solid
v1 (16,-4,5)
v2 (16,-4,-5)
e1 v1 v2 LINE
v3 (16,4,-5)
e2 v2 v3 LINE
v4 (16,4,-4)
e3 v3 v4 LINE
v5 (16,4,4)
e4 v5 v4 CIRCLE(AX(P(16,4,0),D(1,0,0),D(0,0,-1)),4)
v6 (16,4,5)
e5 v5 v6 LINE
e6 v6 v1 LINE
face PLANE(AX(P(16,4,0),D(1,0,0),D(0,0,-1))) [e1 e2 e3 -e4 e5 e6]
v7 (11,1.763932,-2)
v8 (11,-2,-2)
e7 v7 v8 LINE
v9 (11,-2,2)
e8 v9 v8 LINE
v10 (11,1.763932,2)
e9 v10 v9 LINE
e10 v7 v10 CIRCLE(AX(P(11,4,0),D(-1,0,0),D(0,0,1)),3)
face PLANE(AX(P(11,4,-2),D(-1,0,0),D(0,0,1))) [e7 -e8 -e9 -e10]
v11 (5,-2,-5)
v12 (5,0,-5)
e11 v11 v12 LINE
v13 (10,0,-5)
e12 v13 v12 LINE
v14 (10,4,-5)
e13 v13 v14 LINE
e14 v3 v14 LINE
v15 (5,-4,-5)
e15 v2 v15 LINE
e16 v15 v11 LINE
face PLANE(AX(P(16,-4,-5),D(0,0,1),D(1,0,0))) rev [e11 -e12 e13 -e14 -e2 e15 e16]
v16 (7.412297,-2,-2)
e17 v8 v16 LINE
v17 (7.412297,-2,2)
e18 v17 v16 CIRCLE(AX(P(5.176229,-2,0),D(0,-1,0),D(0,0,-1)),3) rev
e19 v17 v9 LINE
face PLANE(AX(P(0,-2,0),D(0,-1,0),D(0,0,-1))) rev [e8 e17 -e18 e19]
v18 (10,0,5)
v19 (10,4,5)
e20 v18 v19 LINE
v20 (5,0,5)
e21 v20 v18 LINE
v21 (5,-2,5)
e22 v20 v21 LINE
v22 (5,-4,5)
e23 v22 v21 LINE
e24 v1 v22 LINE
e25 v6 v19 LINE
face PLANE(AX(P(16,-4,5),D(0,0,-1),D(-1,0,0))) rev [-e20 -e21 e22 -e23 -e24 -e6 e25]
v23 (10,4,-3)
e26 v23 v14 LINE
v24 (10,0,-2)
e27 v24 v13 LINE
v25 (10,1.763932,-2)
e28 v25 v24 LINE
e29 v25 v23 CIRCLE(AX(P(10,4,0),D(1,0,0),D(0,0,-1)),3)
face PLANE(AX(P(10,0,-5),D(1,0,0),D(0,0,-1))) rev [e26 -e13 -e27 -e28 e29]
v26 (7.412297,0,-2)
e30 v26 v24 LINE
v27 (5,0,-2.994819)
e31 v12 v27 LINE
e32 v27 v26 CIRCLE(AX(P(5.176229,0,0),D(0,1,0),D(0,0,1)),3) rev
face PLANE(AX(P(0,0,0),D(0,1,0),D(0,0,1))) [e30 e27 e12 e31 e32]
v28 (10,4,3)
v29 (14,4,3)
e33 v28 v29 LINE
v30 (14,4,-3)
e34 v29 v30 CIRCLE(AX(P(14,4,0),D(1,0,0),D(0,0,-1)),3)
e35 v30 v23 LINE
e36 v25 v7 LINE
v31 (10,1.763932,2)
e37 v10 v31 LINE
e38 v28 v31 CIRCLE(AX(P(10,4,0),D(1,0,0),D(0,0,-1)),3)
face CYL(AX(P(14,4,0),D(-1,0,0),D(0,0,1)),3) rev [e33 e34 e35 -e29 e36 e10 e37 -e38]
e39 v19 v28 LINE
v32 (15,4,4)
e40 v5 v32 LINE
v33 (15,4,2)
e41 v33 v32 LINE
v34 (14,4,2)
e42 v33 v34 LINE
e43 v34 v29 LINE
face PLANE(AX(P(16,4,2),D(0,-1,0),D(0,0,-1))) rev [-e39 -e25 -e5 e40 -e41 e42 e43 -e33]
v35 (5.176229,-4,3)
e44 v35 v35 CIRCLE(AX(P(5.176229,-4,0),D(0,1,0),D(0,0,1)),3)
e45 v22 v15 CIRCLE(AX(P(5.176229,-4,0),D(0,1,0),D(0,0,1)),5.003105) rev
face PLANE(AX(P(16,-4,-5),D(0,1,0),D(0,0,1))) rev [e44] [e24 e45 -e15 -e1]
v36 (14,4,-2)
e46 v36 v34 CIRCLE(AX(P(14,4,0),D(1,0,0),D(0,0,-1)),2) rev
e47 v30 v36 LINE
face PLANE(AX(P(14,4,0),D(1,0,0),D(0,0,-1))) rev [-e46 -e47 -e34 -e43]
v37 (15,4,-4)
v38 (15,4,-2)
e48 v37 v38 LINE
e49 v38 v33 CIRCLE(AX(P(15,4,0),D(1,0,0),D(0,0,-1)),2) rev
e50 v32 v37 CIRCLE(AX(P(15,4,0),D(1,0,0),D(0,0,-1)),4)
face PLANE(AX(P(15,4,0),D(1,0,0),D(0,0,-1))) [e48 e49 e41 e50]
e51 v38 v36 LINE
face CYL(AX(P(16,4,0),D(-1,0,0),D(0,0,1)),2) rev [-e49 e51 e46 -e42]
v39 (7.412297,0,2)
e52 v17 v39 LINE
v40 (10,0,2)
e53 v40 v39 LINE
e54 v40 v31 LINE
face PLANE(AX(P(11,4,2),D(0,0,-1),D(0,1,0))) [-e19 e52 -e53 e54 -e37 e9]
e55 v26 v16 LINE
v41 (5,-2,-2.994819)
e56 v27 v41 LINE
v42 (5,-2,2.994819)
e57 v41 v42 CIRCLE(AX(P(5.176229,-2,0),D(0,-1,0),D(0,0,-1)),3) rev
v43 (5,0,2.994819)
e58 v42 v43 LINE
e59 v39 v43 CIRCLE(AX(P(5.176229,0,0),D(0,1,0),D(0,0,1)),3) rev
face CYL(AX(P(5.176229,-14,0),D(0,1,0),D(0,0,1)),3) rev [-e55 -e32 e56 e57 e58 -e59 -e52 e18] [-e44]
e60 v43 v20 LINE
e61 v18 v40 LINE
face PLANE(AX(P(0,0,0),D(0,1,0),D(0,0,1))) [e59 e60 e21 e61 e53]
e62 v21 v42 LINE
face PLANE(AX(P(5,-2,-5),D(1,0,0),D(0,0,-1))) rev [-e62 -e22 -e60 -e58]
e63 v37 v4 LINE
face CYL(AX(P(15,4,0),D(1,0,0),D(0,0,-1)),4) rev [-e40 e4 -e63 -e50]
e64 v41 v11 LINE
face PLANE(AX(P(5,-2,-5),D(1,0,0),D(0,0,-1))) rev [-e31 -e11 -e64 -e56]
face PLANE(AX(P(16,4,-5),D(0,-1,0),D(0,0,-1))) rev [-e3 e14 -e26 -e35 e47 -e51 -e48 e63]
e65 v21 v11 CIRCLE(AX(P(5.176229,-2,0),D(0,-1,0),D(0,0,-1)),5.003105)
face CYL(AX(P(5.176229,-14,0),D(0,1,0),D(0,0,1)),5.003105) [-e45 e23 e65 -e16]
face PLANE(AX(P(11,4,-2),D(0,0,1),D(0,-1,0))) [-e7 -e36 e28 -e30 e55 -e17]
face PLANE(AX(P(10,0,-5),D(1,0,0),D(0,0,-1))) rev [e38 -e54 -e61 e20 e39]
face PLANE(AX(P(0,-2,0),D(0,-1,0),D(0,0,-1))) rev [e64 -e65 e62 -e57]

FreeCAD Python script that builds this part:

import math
import FreeCAD as App
import Part
import Sketcher

V = App.Vector
Q = App.Units.Quantity


def add_polygon(sketch, points):
    """Adds a closed chain of lines whose ends are joined by coincident constraints."""
    first, n = sketch.GeometryCount, len(points)
    for a, b in zip(points, points[1:] + points[:1]):
        sketch.addGeometry(Part.LineSegment(App.Vector(*a, 0), App.Vector(*b, 0)), False)
    for i in range(n):
        sketch.addConstraint(Sketcher.Constraint("Coincident", first + i, 2, first + (i + 1) % n, 1))

doc = App.newDocument("Part")
body = doc.addObject("PartDesign::Body", "Body")

sketch1 = body.newObject("Sketcher::SketchObject", "Sketch")
sketch1.AttachmentSupport = (doc.getObject("YZ_Plane"), [""])
sketch1.MapMode = "FlatFace"
sketch1.addGeometry(Part.LineSegment(V(4, 2, 0), V(4, 5, 0)), False)
sketch1.addGeometry(Part.LineSegment(V(4, 5, 0), V(-4, 5, 0)), False)
sketch1.addGeometry(Part.LineSegment(V(-4, 5, 0), V(-4, -5, 0)), False)
sketch1.addGeometry(Part.LineSegment(V(-4, -5, 0), V(4, -5, 0)), False)
sketch1.addGeometry(Part.LineSegment(V(4, -5, 0), V(4, -2, 0)), False)
sketch1.addGeometry(Part.ArcOfCircle(Part.Circle(V(4, 0, 0), V(0, 0, 1), 2), math.radians(90), math.radians(270)), False)
sketch1.addConstraint(Sketcher.Constraint("Coincident", 0, 2, 1, 1))
sketch1.addConstraint(Sketcher.Constraint("Coincident", 1, 2, 2, 1))
sketch1.addConstraint(Sketcher.Constraint("Coincident", 2, 2, 3, 1))
sketch1.addConstraint(Sketcher.Constraint("Coincident", 3, 2, 4, 1))
sketch1.addConstraint(Sketcher.Constraint("Coincident", 4, 2, 5, 2))
sketch1.addConstraint(Sketcher.Constraint("Coincident", 5, 1, 0, 1))
sketch1.addConstraint(Sketcher.Constraint("Vertical", 0))
sketch1.addConstraint(Sketcher.Constraint("Horizontal", 1))
sketch1.addConstraint(Sketcher.Constraint("Vertical", 2))
sketch1.addConstraint(Sketcher.Constraint("Horizontal", 3))
sketch1.addConstraint(Sketcher.Constraint("Vertical", 4))
sketch1.addConstraint(Sketcher.Constraint("Symmetric", 0, 2, 2, 2, -1, 1))
sketch1.addConstraint(Sketcher.Constraint("Symmetric", 4, 2, 5, 1, -1))
sketch1.addConstraint(Sketcher.Constraint("Vertical", 5, 3, 0, 2))
sketch1.addConstraint(Sketcher.Constraint("Radius", 5, Q("2 mm")))
sketch1.addConstraint(Sketcher.Constraint("DistanceX", 1, 2, 1, 1, Q("8 mm")))
sketch1.addConstraint(Sketcher.Constraint("DistanceY", 0, 1, 0, 2, Q("3 mm")))
pad1 = body.newObject("PartDesign::Pad", "Pad")
pad1.Profile = sketch1
pad1.Length = 16

sketch2 = body.newObject("Sketcher::SketchObject", "Sketch001")
sketch2.AttachmentSupport = (doc.getObject("XZ_Plane"), [""])
sketch2.MapMode = "FlatFace"
sketch2.AttachmentOffset = App.Placement(V(0, 0, -4), App.Rotation())
sketch2.addGeometry(Part.Circle(V(5.176229, 0, 0), V(0, 0, 1), 3), False)
sketch2.addGeometry(Part.LineSegment(V(5, -5, 0), V(0, -5, 0)), False)
sketch2.addGeometry(Part.LineSegment(V(0, -5, 0), V(0, 5, 0)), False)
sketch2.addGeometry(Part.LineSegment(V(0, 5, 0), V(5, 5, 0)), False)
sketch2.addGeometry(Part.ArcOfCircle(Part.Circle(V(5.176229, 0, 0), V(0, 0, 1), 5.003105), math.radians(92.018603), math.radians(267.981397)), False)
sketch2.addConstraint(Sketcher.Constraint("Coincident", 1, 2, 2, 1))
sketch2.addConstraint(Sketcher.Constraint("Coincident", 2, 2, 3, 1))
sketch2.addConstraint(Sketcher.Constraint("Coincident", 3, 2, 4, 1))
sketch2.addConstraint(Sketcher.Constraint("Coincident", 4, 2, 1, 1))
sketch2.addConstraint(Sketcher.Constraint("Horizontal", 1))
sketch2.addConstraint(Sketcher.Constraint("Vertical", 2))
sketch2.addConstraint(Sketcher.Constraint("Horizontal", 3))
sketch2.addConstraint(Sketcher.Constraint("Coincident", 4, 3, 0, 3))
sketch2.addConstraint(Sketcher.Constraint("Symmetric", 1, 2, 2, 2, -1, 1))
sketch2.addConstraint(Sketcher.Constraint("PointOnObject", 0, 3, -1))
sketch2.addConstraint(Sketcher.Constraint("Diameter", 0, Q("6 mm")))
sketch2.addConstraint(Sketcher.Constraint("DistanceX", 1, 2, 1, 1, Q("5 mm")))
sketch2.addConstraint(Sketcher.Constraint("DistanceY", 2, 1, 2, 2, Q("10 mm")))
sketch2.addConstraint(Sketcher.Constraint("Radius", 4, Q("5.003105 mm")))
pocket1 = body.newObject("PartDesign::Pocket", "Pocket")
pocket1.Profile = sketch2
pocket1.Length = 18
pocket1.Reversed = True

sketch3 = body.newObject("Sketcher::SketchObject", "Sketch002")
sketch3.AttachmentSupport = (doc.getObject("YZ_Plane"), [""])
sketch3.MapMode = "FlatFace"
sketch3.AttachmentOffset = App.Placement(V(0, 0, 16), App.Rotation())
sketch3.addGeometry(Part.Circle(V(4, 0, 0), V(0, 0, 1), 4), False)
sketch3.addConstraint(Sketcher.Constraint("PointOnObject", 0, 3, -1))
sketch3.addConstraint(Sketcher.Constraint("Diameter", 0, Q("8 mm")))
sketch3.addConstraint(Sketcher.Constraint("DistanceX", -1, 1, 0, 3, Q("4 mm")))
pocket2 = body.newObject("PartDesign::Pocket", "Pocket001")
pocket2.Profile = sketch3
pocket2.Length = 1

sketch4 = body.newObject("Sketcher::SketchObject", "Sketch003")
sketch4.AttachmentSupport = (doc.getObject("YZ_Plane"), [""])
sketch4.MapMode = "FlatFace"
sketch4.addGeometry(Part.Circle(V(4, 0, 0), V(0, 0, 1), 3), False)
sketch4.addConstraint(Sketcher.Constraint("PointOnObject", 0, 3, -1))
sketch4.addConstraint(Sketcher.Constraint("Diameter", 0, Q("6 mm")))
sketch4.addConstraint(Sketcher.Constraint("DistanceX", -1, 1, 0, 3, Q("4 mm")))
pocket3 = body.newObject("PartDesign::Pocket", "Pocket002")
pocket3.Profile = sketch4
pocket3.Length = 14
pocket3.Reversed = True

sketch5 = body.newObject("Sketcher::SketchObject", "Sketch004")
sketch5.AttachmentSupport = (doc.getObject("XZ_Plane"), [""])
sketch5.MapMode = "FlatFace"
sketch5.AttachmentOffset = App.Placement(V(0, 0, -4), App.Rotation())
add_polygon(sketch5, [(-1.803134, -5), (-1.803134, 5.10223), (5, 5.10223), (5, -5)])
sketch5.addConstraint(Sketcher.Constraint("Vertical", 0))
sketch5.addConstraint(Sketcher.Constraint("Horizontal", 1))
sketch5.addConstraint(Sketcher.Constraint("Vertical", 2))
sketch5.addConstraint(Sketcher.Constraint("Horizontal", 3))
sketch5.addConstraint(Sketcher.Constraint("DistanceX", -1, 1, 1, 2, Q("5 mm")))
sketch5.addConstraint(Sketcher.Constraint("DistanceY", 2, 2, -1, 1, Q("5 mm")))
sketch5.addConstraint(Sketcher.Constraint("DistanceY", 0, 1, 0, 2, Q("10.10223 mm")))
sketch5.addConstraint(Sketcher.Constraint("DistanceX", 1, 1, 1, 2, Q("6.803134 mm")))
pocket4 = body.newObject("PartDesign::Pocket", "Pocket003")
pocket4.Profile = sketch5
pocket4.Length = 6
pocket4.Reversed = True

sketch6 = body.newObject("Sketcher::SketchObject", "Sketch005")
sketch6.AttachmentSupport = (doc.getObject("XZ_Plane"), [""])
sketch6.MapMode = "FlatFace"
sketch6.AttachmentOffset = App.Placement(V(0, 0, -4), App.Rotation())
add_polygon(sketch6, [(5, -5), (5, 5), (10, 5), (10, -5)])
sketch6.addConstraint(Sketcher.Constraint("Vertical", 0))
sketch6.addConstraint(Sketcher.Constraint("Horizontal", 1))
sketch6.addConstraint(Sketcher.Constraint("Vertical", 2))
sketch6.addConstraint(Sketcher.Constraint("Horizontal", 3))
sketch6.addConstraint(Sketcher.Constraint("DistanceX", 1, 1, 1, 2, Q("5 mm")))
sketch6.addConstraint(Sketcher.Constraint("DistanceY", 0, 1, 0, 2, Q("10 mm")))
sketch6.addConstraint(Sketcher.Constraint("DistanceX", -1, 1, 0, 2, Q("5 mm")))
sketch6.addConstraint(Sketcher.Constraint("DistanceY", -1, 1, 0, 2, Q("5 mm")))
pocket5 = body.newObject("PartDesign::Pocket", "Pocket004")
pocket5.Profile = sketch6
pocket5.Length = 4
pocket5.Reversed = True

sketch7 = body.newObject("Sketcher::SketchObject", "Sketch006")
sketch7.AttachmentSupport = (doc.getObject("XZ_Plane"), [""])
sketch7.MapMode = "FlatFace"
add_polygon(sketch7, [(4.657096, -2), (4.657096, 2), (11, 2), (11, -2)])
sketch7.addConstraint(Sketcher.Constraint("Vertical", 0))
sketch7.addConstraint(Sketcher.Constraint("Horizontal", 1))
sketch7.addConstraint(Sketcher.Constraint("Vertical", 2))
sketch7.addConstraint(Sketcher.Constraint("Horizontal", 3))
sketch7.addConstraint(Sketcher.Constraint("DistanceY", 0, 1, 0, 2, Q("4 mm")))
sketch7.addConstraint(Sketcher.Constraint("DistanceY", -1, 1, 0, 2, Q("2 mm")))
sketch7.addConstraint(Sketcher.Constraint("DistanceX", -1, 1, 1, 2, Q("11 mm")))
sketch7.addConstraint(Sketcher.Constraint("DistanceX", 1, 1, 1, 2, Q("6.342904 mm")))
pocket6 = body.newObject("PartDesign::Pocket", "Pocket005")
pocket6.Profile = sketch7
pocket6.Type = "TwoLengths"
pocket6.Length = 4
pocket6.Length2 = 2

doc.recompute()
